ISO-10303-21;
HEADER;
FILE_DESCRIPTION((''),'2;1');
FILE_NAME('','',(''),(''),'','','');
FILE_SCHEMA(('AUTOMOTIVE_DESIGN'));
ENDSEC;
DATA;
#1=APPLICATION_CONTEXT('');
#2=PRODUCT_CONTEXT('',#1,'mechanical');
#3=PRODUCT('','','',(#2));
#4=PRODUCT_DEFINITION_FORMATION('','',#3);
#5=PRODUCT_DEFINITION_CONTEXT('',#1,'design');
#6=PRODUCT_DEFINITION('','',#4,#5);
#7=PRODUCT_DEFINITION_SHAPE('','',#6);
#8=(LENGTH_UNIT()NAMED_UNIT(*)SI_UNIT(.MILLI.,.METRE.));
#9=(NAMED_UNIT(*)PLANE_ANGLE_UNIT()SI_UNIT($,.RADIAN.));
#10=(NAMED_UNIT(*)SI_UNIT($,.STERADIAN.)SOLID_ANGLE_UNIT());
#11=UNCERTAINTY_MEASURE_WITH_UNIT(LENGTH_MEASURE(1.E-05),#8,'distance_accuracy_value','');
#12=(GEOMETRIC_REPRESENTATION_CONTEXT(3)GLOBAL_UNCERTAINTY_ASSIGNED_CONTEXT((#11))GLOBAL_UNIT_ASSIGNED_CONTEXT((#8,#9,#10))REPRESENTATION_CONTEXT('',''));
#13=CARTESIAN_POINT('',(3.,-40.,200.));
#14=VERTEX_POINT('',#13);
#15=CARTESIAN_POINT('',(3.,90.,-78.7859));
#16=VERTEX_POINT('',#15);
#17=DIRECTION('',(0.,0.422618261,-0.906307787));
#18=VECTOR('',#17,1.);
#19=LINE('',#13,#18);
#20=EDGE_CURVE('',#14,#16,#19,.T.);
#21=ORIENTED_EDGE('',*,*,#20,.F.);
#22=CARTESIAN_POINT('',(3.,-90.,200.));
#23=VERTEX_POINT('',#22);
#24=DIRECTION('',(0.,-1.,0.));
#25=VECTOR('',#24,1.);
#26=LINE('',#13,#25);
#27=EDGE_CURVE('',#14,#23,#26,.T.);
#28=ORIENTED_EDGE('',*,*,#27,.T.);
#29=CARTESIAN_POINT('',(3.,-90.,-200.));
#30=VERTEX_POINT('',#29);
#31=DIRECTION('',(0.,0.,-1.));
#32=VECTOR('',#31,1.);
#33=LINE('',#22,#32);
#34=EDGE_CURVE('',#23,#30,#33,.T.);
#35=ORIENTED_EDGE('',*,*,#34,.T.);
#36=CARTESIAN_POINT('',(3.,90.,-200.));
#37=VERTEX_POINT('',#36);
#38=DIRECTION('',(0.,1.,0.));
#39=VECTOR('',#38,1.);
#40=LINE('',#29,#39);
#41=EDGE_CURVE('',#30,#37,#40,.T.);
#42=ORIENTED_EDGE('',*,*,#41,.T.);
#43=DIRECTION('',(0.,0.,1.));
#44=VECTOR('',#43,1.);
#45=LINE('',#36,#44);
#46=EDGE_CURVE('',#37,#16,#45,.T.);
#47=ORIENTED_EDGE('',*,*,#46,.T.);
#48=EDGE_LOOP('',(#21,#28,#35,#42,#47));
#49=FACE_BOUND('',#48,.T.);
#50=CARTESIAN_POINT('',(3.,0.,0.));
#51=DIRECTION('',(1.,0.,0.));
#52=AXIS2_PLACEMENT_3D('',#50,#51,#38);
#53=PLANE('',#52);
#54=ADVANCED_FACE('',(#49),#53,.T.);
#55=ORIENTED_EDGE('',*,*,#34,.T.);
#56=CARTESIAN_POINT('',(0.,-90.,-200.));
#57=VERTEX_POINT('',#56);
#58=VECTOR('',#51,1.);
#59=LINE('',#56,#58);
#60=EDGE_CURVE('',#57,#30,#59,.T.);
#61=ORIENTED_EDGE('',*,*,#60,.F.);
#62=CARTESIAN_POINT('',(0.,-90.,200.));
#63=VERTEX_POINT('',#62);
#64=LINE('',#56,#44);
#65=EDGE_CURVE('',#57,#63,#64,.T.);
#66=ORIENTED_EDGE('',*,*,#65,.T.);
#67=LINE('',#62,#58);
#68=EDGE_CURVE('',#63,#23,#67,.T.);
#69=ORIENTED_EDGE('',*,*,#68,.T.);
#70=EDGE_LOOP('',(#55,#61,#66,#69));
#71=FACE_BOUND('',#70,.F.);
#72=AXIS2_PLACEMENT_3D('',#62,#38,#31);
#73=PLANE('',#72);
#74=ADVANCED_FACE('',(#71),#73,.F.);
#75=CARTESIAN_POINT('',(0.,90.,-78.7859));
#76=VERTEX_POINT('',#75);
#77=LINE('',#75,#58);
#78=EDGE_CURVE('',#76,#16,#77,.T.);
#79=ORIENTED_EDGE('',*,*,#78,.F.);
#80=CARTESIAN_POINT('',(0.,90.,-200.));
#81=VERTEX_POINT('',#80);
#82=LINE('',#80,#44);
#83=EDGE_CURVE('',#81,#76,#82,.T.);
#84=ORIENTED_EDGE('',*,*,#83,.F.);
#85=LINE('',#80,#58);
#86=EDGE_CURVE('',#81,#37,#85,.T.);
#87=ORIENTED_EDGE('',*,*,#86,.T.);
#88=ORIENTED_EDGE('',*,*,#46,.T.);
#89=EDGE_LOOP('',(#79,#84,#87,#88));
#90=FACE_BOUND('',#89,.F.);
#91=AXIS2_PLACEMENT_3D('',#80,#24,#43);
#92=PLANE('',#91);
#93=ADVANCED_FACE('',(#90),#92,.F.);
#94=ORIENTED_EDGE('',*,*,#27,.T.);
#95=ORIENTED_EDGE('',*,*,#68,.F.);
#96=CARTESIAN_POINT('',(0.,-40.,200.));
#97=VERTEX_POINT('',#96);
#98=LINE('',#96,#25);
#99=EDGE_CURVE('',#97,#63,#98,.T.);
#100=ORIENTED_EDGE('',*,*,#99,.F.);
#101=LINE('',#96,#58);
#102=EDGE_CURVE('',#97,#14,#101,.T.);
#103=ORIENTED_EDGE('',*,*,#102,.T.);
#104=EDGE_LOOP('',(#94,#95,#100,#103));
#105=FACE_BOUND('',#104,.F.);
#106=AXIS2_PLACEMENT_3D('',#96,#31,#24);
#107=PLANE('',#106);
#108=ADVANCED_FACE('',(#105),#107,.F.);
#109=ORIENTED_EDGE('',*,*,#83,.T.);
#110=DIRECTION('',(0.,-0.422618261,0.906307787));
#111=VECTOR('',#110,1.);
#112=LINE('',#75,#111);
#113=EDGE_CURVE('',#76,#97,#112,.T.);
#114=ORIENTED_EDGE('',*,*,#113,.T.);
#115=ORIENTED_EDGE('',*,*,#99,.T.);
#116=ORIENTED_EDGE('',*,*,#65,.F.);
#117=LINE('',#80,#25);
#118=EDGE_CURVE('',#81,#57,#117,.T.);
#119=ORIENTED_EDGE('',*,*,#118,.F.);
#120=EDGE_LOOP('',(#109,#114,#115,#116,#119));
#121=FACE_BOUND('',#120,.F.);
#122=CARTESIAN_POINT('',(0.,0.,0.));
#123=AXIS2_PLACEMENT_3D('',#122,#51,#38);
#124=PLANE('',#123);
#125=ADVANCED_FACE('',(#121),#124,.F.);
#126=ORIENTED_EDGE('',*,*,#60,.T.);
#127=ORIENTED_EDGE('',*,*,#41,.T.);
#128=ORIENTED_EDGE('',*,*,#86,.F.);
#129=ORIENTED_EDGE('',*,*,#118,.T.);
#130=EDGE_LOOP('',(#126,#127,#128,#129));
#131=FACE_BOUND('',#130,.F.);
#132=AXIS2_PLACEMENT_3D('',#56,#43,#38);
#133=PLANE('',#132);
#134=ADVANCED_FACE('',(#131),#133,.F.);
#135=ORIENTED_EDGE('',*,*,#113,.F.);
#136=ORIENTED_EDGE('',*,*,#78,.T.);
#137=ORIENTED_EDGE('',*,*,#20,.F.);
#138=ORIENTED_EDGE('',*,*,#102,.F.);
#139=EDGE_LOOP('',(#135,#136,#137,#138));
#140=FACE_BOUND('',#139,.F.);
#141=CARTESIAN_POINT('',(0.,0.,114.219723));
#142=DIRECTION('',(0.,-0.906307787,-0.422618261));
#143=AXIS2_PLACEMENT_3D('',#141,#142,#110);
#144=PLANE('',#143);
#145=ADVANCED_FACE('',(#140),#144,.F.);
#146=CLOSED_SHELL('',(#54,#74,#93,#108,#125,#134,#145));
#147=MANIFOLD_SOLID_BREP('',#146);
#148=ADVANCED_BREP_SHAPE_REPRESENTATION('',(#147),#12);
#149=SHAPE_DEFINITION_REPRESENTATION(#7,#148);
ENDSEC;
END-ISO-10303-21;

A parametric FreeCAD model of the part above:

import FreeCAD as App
import Part
import Sketcher
Q = App.Units.Quantity


def add_polygon(sketch, points):
    """Adds a closed chain of lines whose ends are joined by coincident constraints."""
    first, n = sketch.GeometryCount, len(points)
    for a, b in zip(points, points[1:] + points[:1]):
        sketch.addGeometry(Part.LineSegment(App.Vector(*a, 0), App.Vector(*b, 0)), False)
    for i in range(n):
        sketch.addConstraint(Sketcher.Constraint("Coincident", first + i, 2, first + (i + 1) % n, 1))

doc = App.newDocument("Part")
params = doc.addObject("Spreadsheet::Sheet", "Params")
for row, (alias, value) in enumerate([
    ("sketch1_width", "50 mm"),
    ("sketch1_width2", "180 mm"),
    ("sketch1_height", "400 mm"),
    ("pad1_length", "3 mm"),
], start=1):
    params.set(f"A{row}", alias)
    params.set(f"B{row}", "=" + value)
    params.setAlias(f"B{row}", alias)

body = doc.addObject("PartDesign::Body", "Body")

# Sketch on YZ plane
sketch1 = body.newObject("Sketcher::SketchObject", "Sketch")
sketch1.AttachmentSupport = (doc.getObject("YZ_Plane"), [""])
sketch1.MapMode = "FlatFace"
add_polygon(sketch1, [(-40, 200), (-90, 200), (-90, -200), (90, -200), (90, -78.7859)])  # lines 0-4
sketch1.addConstraint(Sketcher.Constraint("Horizontal", 0))
sketch1.addConstraint(Sketcher.Constraint("Vertical", 1))
sketch1.addConstraint(Sketcher.Constraint("Horizontal", 2))
sketch1.addConstraint(Sketcher.Constraint("Vertical", 3))
sketch1.addConstraint(Sketcher.Constraint("Symmetric", 0, 2, 2, 2, -1, 1))
sketch1.addConstraint(Sketcher.Constraint("DistanceX", 0, 2, 0, 1, Q("50 mm")))
sketch1.addConstraint(Sketcher.Constraint("DistanceX", 2, 1, 2, 2, Q("180 mm")))
sketch1.addConstraint(Sketcher.Constraint("DistanceY", 1, 2, 1, 1, Q("400 mm")))
sketch1.addConstraint(Sketcher.Constraint("Angle", 4, Q("115 deg")))
sketch1.setExpression("Constraints[10]", "Params.sketch1_width")
sketch1.setExpression("Constraints[11]", "Params.sketch1_width2")
sketch1.setExpression("Constraints[12]", "Params.sketch1_height")
pad1 = body.newObject("PartDesign::Pad", "Pad")
pad1.Profile = sketch1
pad1.setExpression("Length", "Params.pad1_length")

doc.recompute()
